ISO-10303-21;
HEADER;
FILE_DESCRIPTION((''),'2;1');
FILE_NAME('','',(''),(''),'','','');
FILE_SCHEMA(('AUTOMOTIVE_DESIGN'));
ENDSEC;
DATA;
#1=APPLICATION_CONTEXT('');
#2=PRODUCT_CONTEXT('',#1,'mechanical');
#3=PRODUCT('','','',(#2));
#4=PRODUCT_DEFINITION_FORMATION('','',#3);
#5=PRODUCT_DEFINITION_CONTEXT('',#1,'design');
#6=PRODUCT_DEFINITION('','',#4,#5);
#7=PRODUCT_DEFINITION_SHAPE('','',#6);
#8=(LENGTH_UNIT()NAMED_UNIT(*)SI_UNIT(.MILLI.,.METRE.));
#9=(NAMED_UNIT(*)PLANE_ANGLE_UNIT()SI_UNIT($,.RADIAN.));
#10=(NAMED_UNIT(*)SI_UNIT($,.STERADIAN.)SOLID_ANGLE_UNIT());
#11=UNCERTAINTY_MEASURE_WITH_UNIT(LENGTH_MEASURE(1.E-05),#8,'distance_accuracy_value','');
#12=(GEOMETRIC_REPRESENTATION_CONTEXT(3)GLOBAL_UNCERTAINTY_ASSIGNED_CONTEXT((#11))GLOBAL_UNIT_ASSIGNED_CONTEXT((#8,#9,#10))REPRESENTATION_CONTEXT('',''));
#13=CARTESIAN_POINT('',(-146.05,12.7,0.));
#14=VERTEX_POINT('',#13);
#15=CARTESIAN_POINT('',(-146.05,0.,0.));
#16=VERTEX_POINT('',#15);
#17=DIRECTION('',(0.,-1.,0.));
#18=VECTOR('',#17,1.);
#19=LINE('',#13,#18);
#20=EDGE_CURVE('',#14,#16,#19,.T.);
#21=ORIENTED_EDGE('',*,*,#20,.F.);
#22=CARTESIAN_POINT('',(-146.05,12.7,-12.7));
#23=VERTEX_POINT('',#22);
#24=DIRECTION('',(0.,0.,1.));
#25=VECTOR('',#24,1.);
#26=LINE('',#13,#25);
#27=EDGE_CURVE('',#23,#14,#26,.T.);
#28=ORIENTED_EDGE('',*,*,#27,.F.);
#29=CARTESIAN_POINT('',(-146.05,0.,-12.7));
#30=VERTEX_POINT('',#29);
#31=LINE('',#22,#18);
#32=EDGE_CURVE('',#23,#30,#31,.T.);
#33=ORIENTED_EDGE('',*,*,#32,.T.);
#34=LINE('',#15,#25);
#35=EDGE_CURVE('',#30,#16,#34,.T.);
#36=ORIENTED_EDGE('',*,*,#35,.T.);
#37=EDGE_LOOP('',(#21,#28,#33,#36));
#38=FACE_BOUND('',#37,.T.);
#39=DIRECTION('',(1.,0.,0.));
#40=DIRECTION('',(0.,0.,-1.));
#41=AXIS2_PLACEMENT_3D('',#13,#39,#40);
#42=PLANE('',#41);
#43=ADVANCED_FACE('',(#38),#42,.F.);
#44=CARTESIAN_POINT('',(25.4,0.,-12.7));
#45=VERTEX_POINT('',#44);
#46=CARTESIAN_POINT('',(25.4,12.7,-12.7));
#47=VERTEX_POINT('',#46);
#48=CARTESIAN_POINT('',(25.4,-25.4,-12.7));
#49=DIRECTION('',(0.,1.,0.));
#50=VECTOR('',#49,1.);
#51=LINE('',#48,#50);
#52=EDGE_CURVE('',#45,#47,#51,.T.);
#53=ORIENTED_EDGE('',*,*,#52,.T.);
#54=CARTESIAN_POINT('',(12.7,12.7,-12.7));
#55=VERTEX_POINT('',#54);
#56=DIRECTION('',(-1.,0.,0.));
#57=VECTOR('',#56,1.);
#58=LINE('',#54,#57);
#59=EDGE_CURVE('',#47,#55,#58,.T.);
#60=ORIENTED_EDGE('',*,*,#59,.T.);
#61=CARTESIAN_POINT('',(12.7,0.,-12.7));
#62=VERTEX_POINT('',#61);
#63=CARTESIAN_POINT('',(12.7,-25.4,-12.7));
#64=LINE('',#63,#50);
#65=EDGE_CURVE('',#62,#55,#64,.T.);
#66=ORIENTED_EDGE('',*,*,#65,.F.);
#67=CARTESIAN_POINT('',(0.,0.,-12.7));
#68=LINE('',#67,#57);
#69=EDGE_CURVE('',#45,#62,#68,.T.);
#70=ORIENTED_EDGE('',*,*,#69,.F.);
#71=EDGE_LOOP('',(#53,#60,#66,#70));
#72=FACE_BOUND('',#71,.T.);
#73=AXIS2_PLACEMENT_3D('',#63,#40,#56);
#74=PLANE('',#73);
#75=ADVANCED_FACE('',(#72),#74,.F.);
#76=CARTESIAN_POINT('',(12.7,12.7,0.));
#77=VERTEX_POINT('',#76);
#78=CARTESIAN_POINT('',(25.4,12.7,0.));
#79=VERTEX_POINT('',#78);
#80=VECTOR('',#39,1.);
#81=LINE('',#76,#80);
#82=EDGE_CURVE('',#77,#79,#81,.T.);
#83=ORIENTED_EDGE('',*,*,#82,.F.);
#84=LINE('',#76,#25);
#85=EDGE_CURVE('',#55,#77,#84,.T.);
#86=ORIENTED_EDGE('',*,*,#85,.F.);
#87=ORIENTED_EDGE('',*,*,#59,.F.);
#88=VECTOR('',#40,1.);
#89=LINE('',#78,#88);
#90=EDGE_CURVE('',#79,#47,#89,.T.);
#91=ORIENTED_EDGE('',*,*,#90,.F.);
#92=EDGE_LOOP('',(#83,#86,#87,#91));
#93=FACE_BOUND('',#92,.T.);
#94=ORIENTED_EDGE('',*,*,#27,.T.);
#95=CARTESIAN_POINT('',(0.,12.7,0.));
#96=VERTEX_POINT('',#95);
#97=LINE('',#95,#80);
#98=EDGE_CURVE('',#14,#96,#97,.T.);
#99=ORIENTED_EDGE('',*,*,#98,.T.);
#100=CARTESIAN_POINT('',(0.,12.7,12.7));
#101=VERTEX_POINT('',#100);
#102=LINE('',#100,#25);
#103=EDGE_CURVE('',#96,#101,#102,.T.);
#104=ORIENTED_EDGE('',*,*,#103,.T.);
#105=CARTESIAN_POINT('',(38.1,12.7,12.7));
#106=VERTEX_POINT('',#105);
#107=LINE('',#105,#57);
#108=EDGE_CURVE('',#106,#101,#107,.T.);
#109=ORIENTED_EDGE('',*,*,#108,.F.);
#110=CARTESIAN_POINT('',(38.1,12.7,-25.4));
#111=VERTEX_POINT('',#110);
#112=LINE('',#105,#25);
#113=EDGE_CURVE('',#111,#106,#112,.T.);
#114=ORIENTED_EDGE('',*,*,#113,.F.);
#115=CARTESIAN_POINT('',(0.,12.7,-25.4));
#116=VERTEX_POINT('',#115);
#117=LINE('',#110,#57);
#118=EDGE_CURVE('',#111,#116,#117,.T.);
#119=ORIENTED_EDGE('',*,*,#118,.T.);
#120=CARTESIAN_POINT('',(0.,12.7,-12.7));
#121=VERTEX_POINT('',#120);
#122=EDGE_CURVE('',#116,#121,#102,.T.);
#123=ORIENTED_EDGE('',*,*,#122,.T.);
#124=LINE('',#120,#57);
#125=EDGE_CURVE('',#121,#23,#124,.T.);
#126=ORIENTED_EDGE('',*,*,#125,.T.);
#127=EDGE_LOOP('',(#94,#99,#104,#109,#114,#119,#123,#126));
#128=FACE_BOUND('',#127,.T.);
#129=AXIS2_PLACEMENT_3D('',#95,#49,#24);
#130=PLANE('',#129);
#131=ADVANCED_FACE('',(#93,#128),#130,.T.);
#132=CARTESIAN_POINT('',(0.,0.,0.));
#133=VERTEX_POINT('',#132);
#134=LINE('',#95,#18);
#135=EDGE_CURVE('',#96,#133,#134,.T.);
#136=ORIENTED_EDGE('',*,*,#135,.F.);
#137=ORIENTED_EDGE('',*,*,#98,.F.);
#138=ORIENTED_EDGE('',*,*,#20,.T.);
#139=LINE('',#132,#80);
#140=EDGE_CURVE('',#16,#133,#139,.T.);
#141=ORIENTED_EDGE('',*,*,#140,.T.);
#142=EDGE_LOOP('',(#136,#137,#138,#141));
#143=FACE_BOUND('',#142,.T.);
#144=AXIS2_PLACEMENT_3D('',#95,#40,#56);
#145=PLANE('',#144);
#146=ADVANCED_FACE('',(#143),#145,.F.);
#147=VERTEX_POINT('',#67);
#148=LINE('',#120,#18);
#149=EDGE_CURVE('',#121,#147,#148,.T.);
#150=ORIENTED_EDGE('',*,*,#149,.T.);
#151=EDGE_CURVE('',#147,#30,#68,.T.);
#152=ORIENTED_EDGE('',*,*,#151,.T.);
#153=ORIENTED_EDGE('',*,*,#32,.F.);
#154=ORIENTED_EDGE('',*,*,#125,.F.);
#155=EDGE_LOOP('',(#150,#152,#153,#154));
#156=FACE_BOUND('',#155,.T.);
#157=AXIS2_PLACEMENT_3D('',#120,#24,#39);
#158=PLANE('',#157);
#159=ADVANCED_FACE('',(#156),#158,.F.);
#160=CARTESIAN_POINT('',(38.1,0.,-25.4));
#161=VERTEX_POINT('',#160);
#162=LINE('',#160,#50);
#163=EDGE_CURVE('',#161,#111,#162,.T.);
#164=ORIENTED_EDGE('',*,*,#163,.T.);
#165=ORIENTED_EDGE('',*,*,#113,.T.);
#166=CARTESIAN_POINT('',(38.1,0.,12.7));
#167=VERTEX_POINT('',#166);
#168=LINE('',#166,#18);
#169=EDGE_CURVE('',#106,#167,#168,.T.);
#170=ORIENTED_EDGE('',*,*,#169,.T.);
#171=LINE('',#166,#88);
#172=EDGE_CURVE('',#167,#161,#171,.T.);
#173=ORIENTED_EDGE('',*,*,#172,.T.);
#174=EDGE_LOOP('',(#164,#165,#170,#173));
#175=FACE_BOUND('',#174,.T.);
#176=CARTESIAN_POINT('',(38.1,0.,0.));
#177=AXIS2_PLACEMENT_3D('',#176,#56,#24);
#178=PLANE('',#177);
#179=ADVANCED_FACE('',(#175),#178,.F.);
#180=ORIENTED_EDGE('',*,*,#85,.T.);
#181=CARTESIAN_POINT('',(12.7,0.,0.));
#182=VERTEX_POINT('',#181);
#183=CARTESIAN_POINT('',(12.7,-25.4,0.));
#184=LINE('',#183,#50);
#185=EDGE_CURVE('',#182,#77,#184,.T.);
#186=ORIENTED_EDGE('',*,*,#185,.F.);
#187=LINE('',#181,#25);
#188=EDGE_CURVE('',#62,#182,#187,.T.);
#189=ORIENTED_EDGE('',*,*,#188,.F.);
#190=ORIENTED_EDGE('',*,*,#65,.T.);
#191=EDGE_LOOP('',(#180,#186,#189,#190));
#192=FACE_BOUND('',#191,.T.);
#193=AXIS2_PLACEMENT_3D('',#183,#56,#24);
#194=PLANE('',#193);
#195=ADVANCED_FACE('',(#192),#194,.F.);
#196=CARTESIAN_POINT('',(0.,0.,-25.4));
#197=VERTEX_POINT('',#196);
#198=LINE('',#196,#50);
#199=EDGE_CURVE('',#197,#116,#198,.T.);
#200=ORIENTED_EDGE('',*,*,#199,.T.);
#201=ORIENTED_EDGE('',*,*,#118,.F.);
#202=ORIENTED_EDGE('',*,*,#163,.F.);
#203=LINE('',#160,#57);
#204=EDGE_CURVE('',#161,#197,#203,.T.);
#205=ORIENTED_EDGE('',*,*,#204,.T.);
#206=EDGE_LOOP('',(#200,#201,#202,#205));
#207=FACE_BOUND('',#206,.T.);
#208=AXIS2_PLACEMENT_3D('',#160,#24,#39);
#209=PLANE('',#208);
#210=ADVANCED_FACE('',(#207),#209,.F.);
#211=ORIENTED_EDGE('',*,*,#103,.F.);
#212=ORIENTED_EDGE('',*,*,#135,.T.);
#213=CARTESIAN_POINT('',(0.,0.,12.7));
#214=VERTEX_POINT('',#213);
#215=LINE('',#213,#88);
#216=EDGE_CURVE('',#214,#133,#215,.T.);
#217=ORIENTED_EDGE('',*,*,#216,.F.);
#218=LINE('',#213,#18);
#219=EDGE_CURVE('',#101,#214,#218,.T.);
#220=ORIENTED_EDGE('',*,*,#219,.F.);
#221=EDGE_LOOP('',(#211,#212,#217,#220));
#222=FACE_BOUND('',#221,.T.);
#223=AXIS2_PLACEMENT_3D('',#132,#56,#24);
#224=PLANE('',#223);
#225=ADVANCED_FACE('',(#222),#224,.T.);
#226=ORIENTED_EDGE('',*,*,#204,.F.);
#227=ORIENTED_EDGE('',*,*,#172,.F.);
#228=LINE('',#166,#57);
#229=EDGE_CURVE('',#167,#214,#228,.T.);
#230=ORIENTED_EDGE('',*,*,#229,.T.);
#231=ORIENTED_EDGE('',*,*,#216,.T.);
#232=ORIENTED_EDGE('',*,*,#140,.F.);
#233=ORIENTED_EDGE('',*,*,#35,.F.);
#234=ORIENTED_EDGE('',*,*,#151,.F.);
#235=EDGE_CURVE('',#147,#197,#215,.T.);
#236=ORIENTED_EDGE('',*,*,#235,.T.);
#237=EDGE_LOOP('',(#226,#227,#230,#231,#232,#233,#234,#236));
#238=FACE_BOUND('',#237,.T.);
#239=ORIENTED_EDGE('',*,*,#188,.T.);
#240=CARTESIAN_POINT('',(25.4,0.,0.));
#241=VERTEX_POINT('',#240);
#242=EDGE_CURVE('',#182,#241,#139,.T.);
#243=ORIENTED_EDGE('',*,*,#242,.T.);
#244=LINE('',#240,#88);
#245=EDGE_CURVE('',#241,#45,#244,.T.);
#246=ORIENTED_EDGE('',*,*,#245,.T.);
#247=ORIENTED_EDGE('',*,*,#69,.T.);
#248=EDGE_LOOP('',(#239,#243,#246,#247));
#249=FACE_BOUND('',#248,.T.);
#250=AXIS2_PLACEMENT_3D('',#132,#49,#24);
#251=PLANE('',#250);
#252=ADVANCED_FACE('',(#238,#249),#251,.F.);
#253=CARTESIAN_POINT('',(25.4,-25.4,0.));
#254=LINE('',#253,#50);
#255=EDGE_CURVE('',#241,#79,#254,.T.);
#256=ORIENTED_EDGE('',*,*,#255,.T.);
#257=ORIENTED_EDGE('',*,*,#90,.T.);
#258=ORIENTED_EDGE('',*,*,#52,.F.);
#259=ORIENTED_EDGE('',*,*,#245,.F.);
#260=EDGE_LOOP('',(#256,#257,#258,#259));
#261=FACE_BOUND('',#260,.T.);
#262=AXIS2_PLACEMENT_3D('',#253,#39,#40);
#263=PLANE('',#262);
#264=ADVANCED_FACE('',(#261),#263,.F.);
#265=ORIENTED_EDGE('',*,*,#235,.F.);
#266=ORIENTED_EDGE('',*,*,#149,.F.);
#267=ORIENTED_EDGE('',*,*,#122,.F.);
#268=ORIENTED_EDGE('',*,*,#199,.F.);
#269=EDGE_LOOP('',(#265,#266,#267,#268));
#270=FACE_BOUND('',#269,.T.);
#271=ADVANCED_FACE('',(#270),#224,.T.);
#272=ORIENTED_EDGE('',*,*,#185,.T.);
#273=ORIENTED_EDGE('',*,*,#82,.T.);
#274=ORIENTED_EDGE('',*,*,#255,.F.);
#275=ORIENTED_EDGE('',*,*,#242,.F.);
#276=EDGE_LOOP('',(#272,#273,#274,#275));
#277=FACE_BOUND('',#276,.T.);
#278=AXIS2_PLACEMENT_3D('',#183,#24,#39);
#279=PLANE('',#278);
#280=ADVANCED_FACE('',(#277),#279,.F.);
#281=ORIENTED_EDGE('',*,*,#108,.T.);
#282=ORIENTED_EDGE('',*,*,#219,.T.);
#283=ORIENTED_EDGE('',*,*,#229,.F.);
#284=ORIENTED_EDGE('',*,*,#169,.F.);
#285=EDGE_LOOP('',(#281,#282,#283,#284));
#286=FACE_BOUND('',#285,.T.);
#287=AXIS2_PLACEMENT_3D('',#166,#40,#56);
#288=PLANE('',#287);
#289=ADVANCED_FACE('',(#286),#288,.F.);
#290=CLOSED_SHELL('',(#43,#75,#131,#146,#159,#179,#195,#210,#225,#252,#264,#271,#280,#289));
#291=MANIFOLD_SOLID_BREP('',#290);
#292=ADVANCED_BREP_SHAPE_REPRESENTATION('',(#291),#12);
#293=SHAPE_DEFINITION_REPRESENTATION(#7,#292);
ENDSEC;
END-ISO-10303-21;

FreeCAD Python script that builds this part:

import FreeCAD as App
import Part
import Sketcher
Q = App.Units.Quantity

doc = App.newDocument("Part")
body = doc.addObject("PartDesign::Body", "Body")

# Sketch on XZ plane
sketch1 = body.newObject("Sketcher::SketchObject", "Sketch")
sketch1.AttachmentSupport = (doc.getObject("XZ_Plane"), [""])
sketch1.MapMode = "FlatFace"
sketch1.addGeometry([
    Part.LineSegment(App.Vector(-146, -13, 0), App.Vector(-146, 0, 0)),
    Part.LineSegment(App.Vector(-146, 0, 0), App.Vector(0, 0, 0)),
    Part.LineSegment(App.Vector(0, 0, 0), App.Vector(0, -13, 0)),
    Part.LineSegment(App.Vector(0, -13, 0), App.Vector(-146, -13, 0)),
], False)
sketch1.addConstraint([
    Sketcher.Constraint("Coincident", 0, 2, 1, 1),
    Sketcher.Constraint("Coincident", 1, 2, 2, 1),
    Sketcher.Constraint("Coincident", 2, 2, 3, 1),
    Sketcher.Constraint("Coincident", 3, 2, 0, 1),
    Sketcher.Constraint("Vertical", 0),
    Sketcher.Constraint("Horizontal", 1),
    Sketcher.Constraint("Vertical", 2),
    Sketcher.Constraint("Horizontal", 3),
    Sketcher.Constraint("Coincident", 1, 2, -1, 1),
    Sketcher.Constraint("DistanceY", 0, 1, 0, 2, Q("0.5 in")),
    Sketcher.Constraint("DistanceX", 1, 1, 1, 2, Q("5.75 in")),
])
pad1 = body.newObject("PartDesign::Pad", "Pad")
pad1.Profile = sketch1
pad1.Length = Q("0.5 in")
pad1.Reversed = True

# Sketch on YZ plane
sketch2 = body.newObject("Sketcher::SketchObject", "Sketch001")
sketch2.AttachmentSupport = (doc.getObject("YZ_Plane"), [""])
sketch2.MapMode = "FlatFace"
sketch2.addGeometry([
    Part.LineSegment(App.Vector(13, 13, 0), App.Vector(0, 13, 0)),
    Part.LineSegment(App.Vector(0, 13, 0), App.Vector(0, -25, 0)),
    Part.LineSegment(App.Vector(0, -25, 0), App.Vector(13, -25, 0)),
    Part.LineSegment(App.Vector(13, -25, 0), App.Vector(13, 13, 0)),
], False)
sketch2.addConstraint([
    Sketcher.Constraint("Coincident", 0, 2, 1, 1),
    Sketcher.Constraint("Coincident", 1, 2, 2, 1),
    Sketcher.Constraint("Coincident", 2, 2, 3, 1),
    Sketcher.Constraint("Coincident", 3, 2, 0, 1),
    Sketcher.Constraint("Horizontal", 0),
    Sketcher.Constraint("Vertical", 1),
    Sketcher.Constraint("Horizontal", 2),
    Sketcher.Constraint("Vertical", 3),
    Sketcher.Constraint("PointOnObject", 0, 2, -2),
    Sketcher.Constraint("DistanceX", 0, 2, 0, 1, Q("0.5 in")),
    Sketcher.Constraint("DistanceY", 1, 2, 1, 1, Q("1.5 in")),
    Sketcher.Constraint("DistanceY", 1, 2, -1, 1, Q("1 in")),
])
pad2 = body.newObject("PartDesign::Pad", "Pad001")
pad2.Profile = sketch2
pad2.Length = Q("1.5 in")

# Sketch on XZ plane
sketch3 = body.newObject("Sketcher::SketchObject", "Sketch002")
sketch3.AttachmentSupport = (doc.getObject("XZ_Plane"), [""])
sketch3.MapMode = "FlatFace"
sketch3.AttachmentOffset = App.Placement(App.Vector(0, 0, -0.5 * 25.4), App.Rotation())
sketch3.addGeometry([
    Part.LineSegment(App.Vector(13, -13, 0), App.Vector(13, 0, 0)),
    Part.LineSegment(App.Vector(13, 0, 0), App.Vector(25, 0, 0)),
    Part.LineSegment(App.Vector(25, 0, 0), App.Vector(25, -13, 0)),
    Part.LineSegment(App.Vector(25, -13, 0), App.Vector(13, -13, 0)),
], False)
sketch3.addConstraint([
    Sketcher.Constraint("Coincident", 0, 2, 1, 1),
    Sketcher.Constraint("Coincident", 1, 2, 2, 1),
    Sketcher.Constraint("Coincident", 2, 2, 3, 1),
    Sketcher.Constraint("Coincident", 3, 2, 0, 1),
    Sketcher.Constraint("Vertical", 0),
    Sketcher.Constraint("Horizontal", 1),
    Sketcher.Constraint("Vertical", 2),
    Sketcher.Constraint("Horizontal", 3),
    Sketcher.Constraint("PointOnObject", 0, 2, -1),
    Sketcher.Constraint("Equal", 3, 0),
    Sketcher.Constraint("DistanceX", 1, 1, 1, 2, Q("0.5 in")),
    Sketcher.Constraint("DistanceX", -1, 1, 1, 2, Q("1 in")),
])
pocket1 = body.newObject("PartDesign::Pocket", "Pocket")
pocket1.Profile = sketch3
pocket1.Length = Q("1.5 in")
pocket1.Reversed = True

doc.recompute()
